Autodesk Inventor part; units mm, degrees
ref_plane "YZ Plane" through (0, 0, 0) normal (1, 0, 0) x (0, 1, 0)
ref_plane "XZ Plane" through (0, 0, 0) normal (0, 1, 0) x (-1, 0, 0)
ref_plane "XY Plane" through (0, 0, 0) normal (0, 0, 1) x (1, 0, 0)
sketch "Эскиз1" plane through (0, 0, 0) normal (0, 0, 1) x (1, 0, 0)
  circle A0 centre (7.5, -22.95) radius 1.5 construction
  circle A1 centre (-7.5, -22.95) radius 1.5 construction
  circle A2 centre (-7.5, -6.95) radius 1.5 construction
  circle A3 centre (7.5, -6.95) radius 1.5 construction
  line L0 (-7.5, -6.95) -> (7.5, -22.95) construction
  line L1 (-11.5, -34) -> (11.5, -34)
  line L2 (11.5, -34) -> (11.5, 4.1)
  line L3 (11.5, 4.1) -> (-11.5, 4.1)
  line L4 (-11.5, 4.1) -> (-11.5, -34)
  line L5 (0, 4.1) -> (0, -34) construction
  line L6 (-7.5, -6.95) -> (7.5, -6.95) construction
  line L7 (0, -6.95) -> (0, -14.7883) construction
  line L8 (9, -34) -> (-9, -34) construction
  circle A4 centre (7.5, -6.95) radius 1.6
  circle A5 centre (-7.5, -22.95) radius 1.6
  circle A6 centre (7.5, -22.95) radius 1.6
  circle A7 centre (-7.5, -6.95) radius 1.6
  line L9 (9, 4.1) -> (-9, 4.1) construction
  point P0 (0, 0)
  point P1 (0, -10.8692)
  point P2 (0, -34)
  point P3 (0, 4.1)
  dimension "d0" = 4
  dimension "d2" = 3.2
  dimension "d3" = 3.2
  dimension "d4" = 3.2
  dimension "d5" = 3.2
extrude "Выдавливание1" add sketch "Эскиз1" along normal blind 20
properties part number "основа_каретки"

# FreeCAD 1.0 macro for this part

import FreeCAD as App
import Part
import Sketcher
from FreeCAD import Vector
Q = App.Units.Quantity

doc = App.newDocument("Part")
body = doc.addObject("PartDesign::Body", "Body")

sketch1 = doc.addObject("Sketcher::SketchObject", "Sketch")
body.addObject(sketch1)
sketch1.AttachmentSupport = (doc.XY_Plane, [""])
sketch1.MapMode = "FlatFace"
sketch1.addGeometry([
    Part.LineSegment(Vector(-11.5, 4.1, 0), Vector(-11.5, -34, 0)),
    Part.LineSegment(Vector(-11.5, -34, 0), Vector(11.5, -34, 0)),
    Part.LineSegment(Vector(11.5, -34, 0), Vector(11.5, 4.1, 0)),
    Part.LineSegment(Vector(11.5, 4.1, 0), Vector(-11.5, 4.1, 0)),
    Part.Circle(Vector(-7.5, -22.9, 0), Vector(0, 0, 1), 1.6),
    Part.Circle(Vector(7.5, -22.9, 0), Vector(0, 0, 1), 1.6),
    Part.Circle(Vector(-7.5, -7, 0), Vector(0, 0, 1), 1.6),
    Part.Circle(Vector(7.5, -7, 0), Vector(0, 0, 1), 1.6),
], False)
sketch1.addConstraint([
    Sketcher.Constraint("Coincident", 0, 2, 1, 1),
    Sketcher.Constraint("Coincident", 1, 2, 2, 1),
    Sketcher.Constraint("Coincident", 2, 2, 3, 1),
    Sketcher.Constraint("Coincident", 3, 2, 0, 1),
    Sketcher.Constraint("Vertical", 0),
    Sketcher.Constraint("Horizontal", 1),
    Sketcher.Constraint("Vertical", 2),
    Sketcher.Constraint("Horizontal", 3),
    Sketcher.Constraint("Equal", 4, 5),
    Sketcher.Constraint("Equal", 5, 6),
    Sketcher.Constraint("Equal", 6, 7),
    Sketcher.Constraint("Symmetric", 4, 3, 5, 3, -2),
    Sketcher.Constraint("Symmetric", 6, 3, 7, 3, -2),
    Sketcher.Constraint("Vertical", 4, 3, 6, 3),
    Sketcher.Constraint("Diameter", 4, Q("3.2 mm")),
    Sketcher.Constraint("DistanceX", 0, 2, 4, 3, Q("4 mm")),
    Sketcher.Constraint("DistanceX", 5, 3, 1, 2, Q("4 mm")),
    Sketcher.Constraint("DistanceX", 1, 1, 1, 2, Q("23 mm")),
    Sketcher.Constraint("DistanceY", 0, 2, 0, 1, Q("38.1 mm")),
    Sketcher.Constraint("DistanceY", 0, 2, -1, 1, Q("34 mm")),
    Sketcher.Constraint("DistanceY", 4, 3, 6, 3, Q("16 mm")),
    Sketcher.Constraint("DistanceY", 4, 3, -1, 1, Q("22.95 mm")),
])
pad1 = doc.addObject("PartDesign::Pad", "Pad")
body.addObject(pad1)
pad1.Profile = sketch1
pad1.Length = 20

doc.recompute()
